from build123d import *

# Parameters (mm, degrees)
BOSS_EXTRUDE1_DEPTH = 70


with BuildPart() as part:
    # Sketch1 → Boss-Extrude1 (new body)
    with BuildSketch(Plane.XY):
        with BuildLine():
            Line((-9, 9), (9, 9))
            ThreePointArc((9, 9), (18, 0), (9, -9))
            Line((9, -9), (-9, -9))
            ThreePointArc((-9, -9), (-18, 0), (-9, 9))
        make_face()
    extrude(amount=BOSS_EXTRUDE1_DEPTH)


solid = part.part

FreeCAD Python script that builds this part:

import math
import FreeCAD as App
import Part
import Sketcher
from FreeCAD import Vector
Q = App.Units.Quantity

doc = App.newDocument("Part")
body = doc.addObject("PartDesign::Body", "Body")

sketch1 = body.newObject("Sketcher::SketchObject", "Sketch")
sketch1.AttachmentSupport = (doc.getObject("XY_Plane"), [""])
sketch1.MapMode = "FlatFace"
sketch1.addGeometry([
    Part.LineSegment(Vector(9, 9, 0), Vector(-9, 9, 0)),
    Part.ArcOfCircle(Part.Circle(Vector(-9, 0, 0), Vector(0, 0, 1), 9), math.radians(90), math.radians(270)),
    Part.LineSegment(Vector(-9, -9, 0), Vector(9, -9, 0)),
    Part.ArcOfCircle(Part.Circle(Vector(9, 0, 0), Vector(0, 0, 1), 9), math.radians(-90), math.radians(90)),
], False)
sketch1.addConstraint([
    Sketcher.Constraint("Tangent", 0, 2, 1, 1),
    Sketcher.Constraint("Tangent", 1, 2, 2, 1),
    Sketcher.Constraint("Tangent", 2, 2, 3, 1),
    Sketcher.Constraint("Tangent", 3, 2, 0, 1),
    Sketcher.Constraint("Horizontal", 0),
    Sketcher.Constraint("Horizontal", 2),
    Sketcher.Constraint("Symmetric", 1, 3, 3, 3, -1, 1),
    Sketcher.Constraint("Radius", 1, Q("9 mm")),
    Sketcher.Constraint("DistanceX", 0, 2, 0, 1, Q("18 mm")),
])
pad1 = body.newObject("PartDesign::Pad", "Pad")
pad1.Profile = sketch1
pad1.Length = 70

doc.recompute()
